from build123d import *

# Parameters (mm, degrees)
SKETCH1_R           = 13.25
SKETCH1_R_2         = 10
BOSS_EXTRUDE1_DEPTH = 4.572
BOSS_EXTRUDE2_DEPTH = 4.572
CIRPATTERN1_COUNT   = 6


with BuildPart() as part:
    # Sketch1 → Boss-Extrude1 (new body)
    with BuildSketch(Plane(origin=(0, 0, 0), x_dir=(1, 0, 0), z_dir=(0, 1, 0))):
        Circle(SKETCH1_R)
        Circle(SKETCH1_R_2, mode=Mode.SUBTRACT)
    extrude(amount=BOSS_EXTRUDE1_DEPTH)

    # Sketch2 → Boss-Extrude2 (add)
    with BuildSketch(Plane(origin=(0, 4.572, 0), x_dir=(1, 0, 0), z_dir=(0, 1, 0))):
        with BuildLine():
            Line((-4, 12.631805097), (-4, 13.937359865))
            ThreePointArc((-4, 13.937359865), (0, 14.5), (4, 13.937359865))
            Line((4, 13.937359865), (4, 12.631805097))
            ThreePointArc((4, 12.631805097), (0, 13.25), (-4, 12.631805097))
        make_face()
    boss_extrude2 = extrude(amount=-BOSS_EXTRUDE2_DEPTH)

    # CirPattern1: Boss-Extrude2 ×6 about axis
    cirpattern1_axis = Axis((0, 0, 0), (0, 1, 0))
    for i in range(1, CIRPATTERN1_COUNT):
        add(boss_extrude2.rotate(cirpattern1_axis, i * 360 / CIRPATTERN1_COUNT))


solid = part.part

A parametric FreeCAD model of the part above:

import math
import FreeCAD as App
import Part
import Sketcher

V = App.Vector
Q = App.Units.Quantity

doc = App.newDocument("Part")
body = doc.addObject("PartDesign::Body", "Body")

sketch1 = body.newObject("Sketcher::SketchObject", "Sketch")
sketch1.AttachmentSupport = (doc.getObject("XZ_Plane"), [""])
sketch1.MapMode = "FlatFace"
sketch1.addGeometry(Part.Circle(V(0, 0, 0), V(0, 0, 1), 13.25), False)
sketch1.addGeometry(Part.Circle(V(0, 0, 0), V(0, 0, 1), 10), False)
sketch1.addConstraint(Sketcher.Constraint("Coincident", 0, 3, -1, 1))
sketch1.addConstraint(Sketcher.Constraint("Coincident", 1, 3, -1, 1))
sketch1.addConstraint(Sketcher.Constraint("Diameter", 1, Q("20 mm")))
sketch1.addConstraint(Sketcher.Constraint("Diameter", 0, Q("26.5 mm")))
pad1 = body.newObject("PartDesign::Pad", "Pad")
pad1.Profile = sketch1
pad1.Length = 4.572
pad1.Reversed = True

sketch2 = body.newObject("Sketcher::SketchObject", "Sketch001")
sketch2.AttachmentSupport = (doc.getObject("XZ_Plane"), [""])
sketch2.MapMode = "FlatFace"
sketch2.AttachmentOffset = App.Placement(V(0, 0, -4.572), App.Rotation())
sketch2.addGeometry(Part.LineSegment(V(-4, -13.93736, 0), V(-4, -12.631805, 0)), False)
sketch2.addGeometry(Part.ArcOfCircle(Part.Circle(V(0, 0, 0), V(0, 0, 1), 13.25), math.radians(-107.570964), math.radians(-72.429036)), False)
sketch2.addGeometry(Part.LineSegment(V(4, -12.631805, 0), V(4, -13.93736, 0)), False)
sketch2.addGeometry(Part.ArcOfCircle(Part.Circle(V(0, 0, 0), V(0, 0, 1), 14.5), math.radians(-106.013394), math.radians(-73.986606)), False)
sketch2.addConstraint(Sketcher.Constraint("Coincident", 0, 2, 1, 1))
sketch2.addConstraint(Sketcher.Constraint("Coincident", 1, 2, 2, 1))
sketch2.addConstraint(Sketcher.Constraint("Coincident", 2, 2, 3, 2))
sketch2.addConstraint(Sketcher.Constraint("Coincident", 3, 1, 0, 1))
sketch2.addConstraint(Sketcher.Constraint("Vertical", 0))
sketch2.addConstraint(Sketcher.Constraint("Vertical", 2))
sketch2.addConstraint(Sketcher.Constraint("Coincident", 1, 3, -1, 1))
sketch2.addConstraint(Sketcher.Constraint("Coincident", 3, 3, -1, 1))
sketch2.addConstraint(Sketcher.Constraint("Horizontal", 0, 2, 1, 2))
sketch2.addConstraint(Sketcher.Constraint("Radius", 3, Q("14.5 mm")))
sketch2.addConstraint(Sketcher.Constraint("Radius", 1, Q("13.25 mm")))
sketch2.addConstraint(Sketcher.Constraint("DistanceX", 0, 2, -1, 1, Q("4 mm")))
pad2 = body.newObject("PartDesign::Pad", "Pad001")
pad2.Profile = sketch2
pad2.Length = 4.572
doc.recompute()

polarpattern = body.newObject("PartDesign::PolarPattern", "PolarPattern")
polarpattern.Originals = [pad2]
polarpattern.Axis = (doc.getObject("Y_Axis"), [""])
polarpattern.Angle = 360
polarpattern.Occurrences = 6
body.Tip = polarpattern

doc.recompute()
